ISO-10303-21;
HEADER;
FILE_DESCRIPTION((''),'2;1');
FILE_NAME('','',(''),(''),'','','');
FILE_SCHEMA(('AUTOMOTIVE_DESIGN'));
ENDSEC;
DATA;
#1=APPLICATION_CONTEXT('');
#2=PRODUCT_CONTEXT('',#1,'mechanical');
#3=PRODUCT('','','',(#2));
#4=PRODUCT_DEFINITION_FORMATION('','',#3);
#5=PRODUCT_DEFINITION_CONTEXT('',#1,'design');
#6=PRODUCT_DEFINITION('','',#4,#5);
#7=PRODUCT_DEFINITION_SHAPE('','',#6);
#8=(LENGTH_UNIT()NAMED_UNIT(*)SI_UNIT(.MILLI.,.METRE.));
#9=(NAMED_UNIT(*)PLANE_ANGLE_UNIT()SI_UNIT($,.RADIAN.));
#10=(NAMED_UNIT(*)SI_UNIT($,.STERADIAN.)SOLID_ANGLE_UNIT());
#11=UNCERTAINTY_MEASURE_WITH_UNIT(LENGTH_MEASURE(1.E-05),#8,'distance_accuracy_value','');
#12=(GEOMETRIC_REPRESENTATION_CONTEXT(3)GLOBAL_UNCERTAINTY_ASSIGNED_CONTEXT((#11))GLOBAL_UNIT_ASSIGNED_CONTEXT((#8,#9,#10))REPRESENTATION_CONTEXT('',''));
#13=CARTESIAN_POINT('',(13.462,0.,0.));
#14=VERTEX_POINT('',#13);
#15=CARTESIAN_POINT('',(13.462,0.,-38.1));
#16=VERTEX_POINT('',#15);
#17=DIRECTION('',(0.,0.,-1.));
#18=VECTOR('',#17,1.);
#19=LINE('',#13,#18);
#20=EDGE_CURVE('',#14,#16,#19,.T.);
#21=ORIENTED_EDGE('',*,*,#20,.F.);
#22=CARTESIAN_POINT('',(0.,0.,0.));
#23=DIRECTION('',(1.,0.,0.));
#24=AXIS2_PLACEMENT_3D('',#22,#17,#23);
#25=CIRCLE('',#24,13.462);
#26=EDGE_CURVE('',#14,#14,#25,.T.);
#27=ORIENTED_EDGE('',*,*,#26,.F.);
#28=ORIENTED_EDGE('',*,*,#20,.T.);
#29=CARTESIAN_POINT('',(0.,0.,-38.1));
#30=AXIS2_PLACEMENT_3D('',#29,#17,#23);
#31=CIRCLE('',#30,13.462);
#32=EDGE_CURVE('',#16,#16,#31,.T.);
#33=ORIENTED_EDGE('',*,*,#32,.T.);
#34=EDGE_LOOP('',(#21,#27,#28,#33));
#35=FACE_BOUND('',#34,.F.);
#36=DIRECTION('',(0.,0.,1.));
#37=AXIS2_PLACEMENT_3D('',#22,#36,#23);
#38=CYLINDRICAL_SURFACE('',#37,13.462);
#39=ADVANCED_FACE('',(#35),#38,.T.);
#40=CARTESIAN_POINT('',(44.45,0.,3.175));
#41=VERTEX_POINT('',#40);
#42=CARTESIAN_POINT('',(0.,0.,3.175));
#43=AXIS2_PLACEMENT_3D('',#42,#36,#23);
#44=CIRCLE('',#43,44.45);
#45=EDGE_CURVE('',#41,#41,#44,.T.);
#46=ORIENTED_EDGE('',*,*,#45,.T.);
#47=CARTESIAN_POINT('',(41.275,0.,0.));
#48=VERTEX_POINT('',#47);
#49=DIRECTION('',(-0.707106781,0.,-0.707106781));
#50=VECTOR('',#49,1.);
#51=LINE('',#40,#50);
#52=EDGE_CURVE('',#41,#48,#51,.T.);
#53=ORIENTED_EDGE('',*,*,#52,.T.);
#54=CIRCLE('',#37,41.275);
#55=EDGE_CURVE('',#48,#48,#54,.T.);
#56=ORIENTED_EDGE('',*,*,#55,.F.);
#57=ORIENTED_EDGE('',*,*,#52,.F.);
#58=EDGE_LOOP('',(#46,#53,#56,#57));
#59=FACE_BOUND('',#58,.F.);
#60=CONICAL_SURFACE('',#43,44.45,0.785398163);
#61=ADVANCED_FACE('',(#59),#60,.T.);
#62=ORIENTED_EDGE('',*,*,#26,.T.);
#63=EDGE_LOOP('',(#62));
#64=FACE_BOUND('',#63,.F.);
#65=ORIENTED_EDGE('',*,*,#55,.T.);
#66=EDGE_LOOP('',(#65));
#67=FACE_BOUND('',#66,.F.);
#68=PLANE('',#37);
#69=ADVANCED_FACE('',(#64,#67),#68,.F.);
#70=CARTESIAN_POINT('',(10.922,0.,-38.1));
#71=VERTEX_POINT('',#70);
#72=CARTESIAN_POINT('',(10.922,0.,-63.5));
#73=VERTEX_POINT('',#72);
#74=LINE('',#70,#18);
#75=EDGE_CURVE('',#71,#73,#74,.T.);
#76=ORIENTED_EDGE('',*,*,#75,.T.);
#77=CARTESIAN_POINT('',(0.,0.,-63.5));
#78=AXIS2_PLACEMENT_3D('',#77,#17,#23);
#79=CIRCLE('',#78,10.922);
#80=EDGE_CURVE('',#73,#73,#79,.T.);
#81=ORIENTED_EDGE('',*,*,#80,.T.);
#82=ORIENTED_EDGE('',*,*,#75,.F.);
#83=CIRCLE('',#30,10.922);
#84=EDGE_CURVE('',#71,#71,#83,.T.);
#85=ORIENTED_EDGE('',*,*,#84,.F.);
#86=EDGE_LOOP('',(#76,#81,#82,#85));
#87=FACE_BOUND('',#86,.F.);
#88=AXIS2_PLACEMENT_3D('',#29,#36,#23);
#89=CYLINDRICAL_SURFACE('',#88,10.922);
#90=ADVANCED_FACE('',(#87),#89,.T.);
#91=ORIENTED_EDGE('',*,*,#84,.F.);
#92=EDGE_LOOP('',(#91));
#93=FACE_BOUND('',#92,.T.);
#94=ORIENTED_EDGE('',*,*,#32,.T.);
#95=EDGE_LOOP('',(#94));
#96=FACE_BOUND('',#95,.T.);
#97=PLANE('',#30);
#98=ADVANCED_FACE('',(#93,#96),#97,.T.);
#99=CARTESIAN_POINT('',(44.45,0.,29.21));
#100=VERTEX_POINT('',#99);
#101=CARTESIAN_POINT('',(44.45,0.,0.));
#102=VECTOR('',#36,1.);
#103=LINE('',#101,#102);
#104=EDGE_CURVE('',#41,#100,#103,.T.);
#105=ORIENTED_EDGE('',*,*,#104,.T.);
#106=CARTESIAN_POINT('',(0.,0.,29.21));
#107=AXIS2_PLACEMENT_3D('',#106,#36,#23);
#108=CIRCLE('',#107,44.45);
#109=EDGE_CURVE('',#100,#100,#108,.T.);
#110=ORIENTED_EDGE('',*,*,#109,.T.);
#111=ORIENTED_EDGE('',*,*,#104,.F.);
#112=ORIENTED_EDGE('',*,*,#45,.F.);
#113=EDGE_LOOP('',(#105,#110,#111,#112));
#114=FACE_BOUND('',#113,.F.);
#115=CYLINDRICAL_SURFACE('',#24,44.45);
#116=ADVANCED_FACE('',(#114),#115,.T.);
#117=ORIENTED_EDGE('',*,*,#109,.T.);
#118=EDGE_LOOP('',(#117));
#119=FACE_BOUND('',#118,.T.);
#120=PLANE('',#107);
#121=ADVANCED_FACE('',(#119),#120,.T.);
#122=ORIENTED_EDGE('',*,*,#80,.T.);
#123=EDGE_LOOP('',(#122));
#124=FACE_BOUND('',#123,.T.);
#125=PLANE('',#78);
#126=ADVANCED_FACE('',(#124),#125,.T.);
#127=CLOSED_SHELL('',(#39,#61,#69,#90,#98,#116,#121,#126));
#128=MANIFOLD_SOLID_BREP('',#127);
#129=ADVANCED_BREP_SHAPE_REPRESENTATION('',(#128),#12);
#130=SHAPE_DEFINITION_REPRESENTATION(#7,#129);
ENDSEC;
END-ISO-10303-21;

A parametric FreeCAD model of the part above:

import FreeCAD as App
import Part
import Sketcher
Q = App.Units.Quantity


def edges_at(feature, points):
    """Names of the edges that pass closest to the given points."""
    edges = feature.Shape.Edges
    near = lambda p: min(range(len(edges)), key=lambda i: edges[i].distToShape(Part.Vertex(*p))[0])
    return sorted({f"Edge{near(p) + 1}" for p in points})

doc = App.newDocument("Part")
body = doc.addObject("PartDesign::Body", "Body")

# Sketch on XY plane
sketch1 = body.newObject("Sketcher::SketchObject", "Sketch")
sketch1.AttachmentSupport = (doc.getObject("XY_Plane"), [""])
sketch1.MapMode = "FlatFace"
sketch1.addGeometry(Part.Circle(App.Vector(0, 0, 0), App.Vector(0, 0, 1), 44), False)
sketch1.addConstraint(Sketcher.Constraint("Coincident", 0, 3, -1, 1))
sketch1.addConstraint(Sketcher.Constraint("Diameter", 0, Q("3.5 in")))
pad1 = body.newObject("PartDesign::Pad", "Pad")
pad1.Profile = sketch1
pad1.Length = Q("1.15 in")
doc.recompute()

chamfer = body.newObject("PartDesign::Chamfer", "Chamfer")
chamfer.Base = (pad1, edges_at(pad1, [(-44.45, 0, 0)]))
chamfer.Size = Q("0.125 in")

# Sketch on XY plane
sketch2 = body.newObject("Sketcher::SketchObject", "Sketch001")
sketch2.AttachmentSupport = (doc.getObject("XY_Plane"), [""])
sketch2.MapMode = "FlatFace"
sketch2.addGeometry(Part.Circle(App.Vector(0, 0, 0), App.Vector(0, 0, 1), 13), False)
sketch2.addConstraint(Sketcher.Constraint("Coincident", 0, 3, -1, 1))
sketch2.addConstraint(Sketcher.Constraint("Diameter", 0, Q("1.06 in")))
pad2 = body.newObject("PartDesign::Pad", "Pad001")
pad2.Profile = sketch2
pad2.Length = Q("1.5 in")
pad2.Reversed = True

# Sketch on XY plane
sketch3 = body.newObject("Sketcher::SketchObject", "Sketch002")
sketch3.AttachmentSupport = (doc.getObject("XY_Plane"), [""])
sketch3.MapMode = "FlatFace"
sketch3.AttachmentOffset = App.Placement(App.Vector(0, 0, -1.5 * 25.4), App.Rotation())
sketch3.addGeometry(Part.Circle(App.Vector(0, 0, 0), App.Vector(0, 0, 1), 11), False)
sketch3.addConstraint(Sketcher.Constraint("Coincident", 0, 3, -1, 1))
sketch3.addConstraint(Sketcher.Constraint("Diameter", 0, Q("0.86 in")))
pad3 = body.newObject("PartDesign::Pad", "Pad002")
pad3.Profile = sketch3
pad3.Length = Q("1 in")
pad3.Reversed = True

doc.recompute()
